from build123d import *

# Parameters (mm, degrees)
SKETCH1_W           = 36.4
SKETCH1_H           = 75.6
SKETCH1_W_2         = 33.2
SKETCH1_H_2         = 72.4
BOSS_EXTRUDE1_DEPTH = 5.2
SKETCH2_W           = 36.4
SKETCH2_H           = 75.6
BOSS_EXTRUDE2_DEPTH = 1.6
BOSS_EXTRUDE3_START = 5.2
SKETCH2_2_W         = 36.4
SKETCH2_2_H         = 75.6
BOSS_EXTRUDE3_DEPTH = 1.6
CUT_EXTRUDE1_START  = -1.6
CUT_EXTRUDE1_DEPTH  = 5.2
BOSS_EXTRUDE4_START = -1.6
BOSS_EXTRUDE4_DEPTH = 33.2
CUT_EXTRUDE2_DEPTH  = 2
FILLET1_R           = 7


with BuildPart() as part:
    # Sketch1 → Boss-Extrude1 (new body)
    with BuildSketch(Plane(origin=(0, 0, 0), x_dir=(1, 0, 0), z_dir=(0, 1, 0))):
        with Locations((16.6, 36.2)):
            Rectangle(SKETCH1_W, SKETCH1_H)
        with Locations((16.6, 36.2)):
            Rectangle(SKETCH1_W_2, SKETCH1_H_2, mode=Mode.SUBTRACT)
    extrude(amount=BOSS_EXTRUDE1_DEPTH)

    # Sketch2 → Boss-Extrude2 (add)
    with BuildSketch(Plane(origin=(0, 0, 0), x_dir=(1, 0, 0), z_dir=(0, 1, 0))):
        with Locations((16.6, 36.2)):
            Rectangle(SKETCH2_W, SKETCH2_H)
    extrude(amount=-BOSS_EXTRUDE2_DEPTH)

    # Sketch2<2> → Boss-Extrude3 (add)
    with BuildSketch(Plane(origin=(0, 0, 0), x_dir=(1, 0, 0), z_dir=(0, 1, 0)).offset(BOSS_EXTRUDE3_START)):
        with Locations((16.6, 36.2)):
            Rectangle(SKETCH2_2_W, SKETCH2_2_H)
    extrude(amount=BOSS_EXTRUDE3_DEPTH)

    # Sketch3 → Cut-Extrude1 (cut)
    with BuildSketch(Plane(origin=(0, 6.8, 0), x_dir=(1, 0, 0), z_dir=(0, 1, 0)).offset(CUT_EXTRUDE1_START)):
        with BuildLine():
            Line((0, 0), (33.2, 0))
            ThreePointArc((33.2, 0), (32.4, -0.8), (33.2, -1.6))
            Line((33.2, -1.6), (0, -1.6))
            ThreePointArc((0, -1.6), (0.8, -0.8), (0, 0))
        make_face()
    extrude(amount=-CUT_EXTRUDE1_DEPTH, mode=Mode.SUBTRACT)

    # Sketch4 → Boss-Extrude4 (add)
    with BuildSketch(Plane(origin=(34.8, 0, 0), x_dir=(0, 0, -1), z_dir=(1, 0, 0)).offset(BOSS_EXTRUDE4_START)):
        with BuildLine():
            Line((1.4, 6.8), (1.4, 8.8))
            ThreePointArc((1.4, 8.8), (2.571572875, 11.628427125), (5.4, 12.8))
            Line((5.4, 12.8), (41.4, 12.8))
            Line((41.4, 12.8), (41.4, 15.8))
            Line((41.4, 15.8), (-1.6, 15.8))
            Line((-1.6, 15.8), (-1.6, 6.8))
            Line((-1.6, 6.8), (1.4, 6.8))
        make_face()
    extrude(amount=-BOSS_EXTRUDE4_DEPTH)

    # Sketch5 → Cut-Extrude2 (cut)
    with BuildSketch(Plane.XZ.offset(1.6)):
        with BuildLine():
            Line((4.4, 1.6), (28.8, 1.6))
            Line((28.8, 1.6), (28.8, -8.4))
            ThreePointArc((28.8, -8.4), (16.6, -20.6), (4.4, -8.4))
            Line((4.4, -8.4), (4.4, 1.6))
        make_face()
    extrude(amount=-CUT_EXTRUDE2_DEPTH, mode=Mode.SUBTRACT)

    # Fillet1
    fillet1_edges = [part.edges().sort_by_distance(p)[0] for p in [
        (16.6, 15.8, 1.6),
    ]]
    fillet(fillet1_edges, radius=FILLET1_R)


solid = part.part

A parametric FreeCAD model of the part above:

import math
import FreeCAD as App
import Part
import Sketcher

V = App.Vector
Q = App.Units.Quantity


def edges_at(feature, points):
    """Names of the edges that pass closest to the given points."""
    edges = feature.Shape.Edges
    near = lambda p: min(range(len(edges)), key=lambda i: edges[i].distToShape(Part.Vertex(*p))[0])
    return sorted({f"Edge{near(p) + 1}" for p in points})

doc = App.newDocument("Part")
body = doc.addObject("PartDesign::Body", "Body")

# Sketch on XZ plane
sketch1 = body.newObject("Sketcher::SketchObject", "Sketch")
sketch1.AttachmentSupport = (doc.getObject("XZ_Plane"), [""])
sketch1.MapMode = "FlatFace"
sketch1.addGeometry([
    Part.LineSegment(V(-2, -74, 0), V(-2, 2, 0)),  # 0
    Part.LineSegment(V(-2, 2, 0), V(35, 2, 0)),  # 1
    Part.LineSegment(V(35, 2, 0), V(35, -74, 0)),  # 2
    Part.LineSegment(V(35, -74, 0), V(-2, -74, 0)),  # 3
    Part.LineSegment(V(33, 0, 0), V(0, 0, 0)),  # 4
    Part.LineSegment(V(0, 0, 0), V(0, -72, 0)),  # 5
    Part.LineSegment(V(0, -72, 0), V(33, -72, 0)),  # 6
    Part.LineSegment(V(33, -72, 0), V(33, 0, 0)),  # 7
], False)
sketch1.addConstraint([
    Sketcher.Constraint("Coincident", 0, 2, 1, 1),
    Sketcher.Constraint("Coincident", 1, 2, 2, 1),
    Sketcher.Constraint("Coincident", 2, 2, 3, 1),
    Sketcher.Constraint("Coincident", 3, 2, 0, 1),
    Sketcher.Constraint("Coincident", 4, 2, 5, 1),
    Sketcher.Constraint("Coincident", 5, 2, 6, 1),
    Sketcher.Constraint("Coincident", 6, 2, 7, 1),
    Sketcher.Constraint("Coincident", 7, 2, 4, 1),
    Sketcher.Constraint("Vertical", 0),
    Sketcher.Constraint("Horizontal", 1),
    Sketcher.Constraint("Vertical", 2),
    Sketcher.Constraint("Horizontal", 3),
    Sketcher.Constraint("Horizontal", 4),
    Sketcher.Constraint("Vertical", 5),
    Sketcher.Constraint("Horizontal", 6),
    Sketcher.Constraint("Vertical", 7),
    Sketcher.Constraint("Coincident", 4, 2, -1, 1),
    Sketcher.Constraint("DistanceX", 1, 1, 1, 2, Q("36.4 mm")),
    Sketcher.Constraint("DistanceX", 4, 2, 4, 1, Q("33.2 mm")),
    Sketcher.Constraint("DistanceY", 0, 1, 0, 2, Q("75.6 mm")),
    Sketcher.Constraint("DistanceY", 5, 2, 5, 1, Q("72.4 mm")),
    Sketcher.Constraint("DistanceY", 2, 2, -1, 1, Q("74 mm")),
    Sketcher.Constraint("DistanceX", 0, 2, -1, 1, Q("1.6 mm")),
])
pad1 = body.newObject("PartDesign::Pad", "Pad")
pad1.Profile = sketch1
pad1.Length = 5.2
pad1.Reversed = True

# Sketch on XZ plane
sketch2 = body.newObject("Sketcher::SketchObject", "Sketch001")
sketch2.AttachmentSupport = (doc.getObject("XZ_Plane"), [""])
sketch2.MapMode = "FlatFace"
sketch2.addGeometry([
    Part.LineSegment(V(-2, -74, 0), V(-2, 2, 0)),
    Part.LineSegment(V(-2, 2, 0), V(35, 2, 0)),
    Part.LineSegment(V(35, 2, 0), V(35, -74, 0)),
    Part.LineSegment(V(35, -74, 0), V(-2, -74, 0)),
], False)
sketch2.addConstraint([
    Sketcher.Constraint("Coincident", 0, 2, 1, 1),
    Sketcher.Constraint("Coincident", 1, 2, 2, 1),
    Sketcher.Constraint("Coincident", 2, 2, 3, 1),
    Sketcher.Constraint("Coincident", 3, 2, 0, 1),
    Sketcher.Constraint("Vertical", 0),
    Sketcher.Constraint("Horizontal", 1),
    Sketcher.Constraint("Vertical", 2),
    Sketcher.Constraint("Horizontal", 3),
    Sketcher.Constraint("DistanceX", 1, 1, 1, 2, Q("36.4 mm")),
    Sketcher.Constraint("DistanceY", 0, 1, 0, 2, Q("75.6 mm")),
    Sketcher.Constraint("DistanceY", 2, 2, -1, 1, Q("74 mm")),
    Sketcher.Constraint("DistanceX", 0, 2, -1, 1, Q("1.6 mm")),
])
pad2 = body.newObject("PartDesign::Pad", "Pad001")
pad2.Profile = sketch2
pad2.Length = 1.6

# Sketch on XZ plane
sketch3 = body.newObject("Sketcher::SketchObject", "Sketch002")
sketch3.AttachmentSupport = (doc.getObject("XZ_Plane"), [""])
sketch3.MapMode = "FlatFace"
sketch3.AttachmentOffset = App.Placement(V(0, 0, -5.2), App.Rotation())
sketch3.addGeometry([
    Part.LineSegment(V(-2, -74, 0), V(-2, 2, 0)),
    Part.LineSegment(V(-2, 2, 0), V(35, 2, 0)),
    Part.LineSegment(V(35, 2, 0), V(35, -74, 0)),
    Part.LineSegment(V(35, -74, 0), V(-2, -74, 0)),
], False)
sketch3.addConstraint([
    Sketcher.Constraint("Coincident", 0, 2, 1, 1),
    Sketcher.Constraint("Coincident", 1, 2, 2, 1),
    Sketcher.Constraint("Coincident", 2, 2, 3, 1),
    Sketcher.Constraint("Coincident", 3, 2, 0, 1),
    Sketcher.Constraint("Vertical", 0),
    Sketcher.Constraint("Horizontal", 1),
    Sketcher.Constraint("Vertical", 2),
    Sketcher.Constraint("Horizontal", 3),
    Sketcher.Constraint("DistanceX", 1, 1, 1, 2, Q("36.4 mm")),
    Sketcher.Constraint("DistanceY", 0, 1, 0, 2, Q("75.6 mm")),
    Sketcher.Constraint("DistanceY", 2, 2, -1, 1, Q("74 mm")),
    Sketcher.Constraint("DistanceX", 0, 2, -1, 1, Q("1.6 mm")),
])
pad3 = body.newObject("PartDesign::Pad", "Pad002")
pad3.Profile = sketch3
pad3.Length = 1.6
pad3.Reversed = True

# Sketch on XZ plane
sketch4 = body.newObject("Sketcher::SketchObject", "Sketch003")
sketch4.AttachmentSupport = (doc.getObject("XZ_Plane"), [""])
sketch4.MapMode = "FlatFace"
sketch4.AttachmentOffset = App.Placement(V(0, 0, -5.2), App.Rotation())
sketch4.addGeometry([
    Part.LineSegment(V(33.2, 0, 0), V(0, 0, 0)),
    Part.ArcOfCircle(Part.Circle(V(0, 0.8, 0), V(0, 0, 1), 0.8), math.radians(-90), math.radians(90)),
    Part.LineSegment(V(0, 1.6, 0), V(33.2, 1.6, 0)),
    Part.ArcOfCircle(Part.Circle(V(33.2, 0.8, 0), V(0, 0, 1), 0.8), math.radians(90), math.radians(270)),
], False)
sketch4.addConstraint([
    Sketcher.Constraint("Tangent", 0, 2, 1, 1),
    Sketcher.Constraint("Tangent", 1, 2, 2, 1),
    Sketcher.Constraint("Tangent", 2, 2, 3, 1),
    Sketcher.Constraint("Tangent", 3, 2, 0, 1),
    Sketcher.Constraint("Horizontal", 0),
    Sketcher.Constraint("Horizontal", 2),
    Sketcher.Constraint("Coincident", 0, 2, -1, 1),
    Sketcher.Constraint("Radius", 1, Q("0.8 mm")),
    Sketcher.Constraint("DistanceX", 0, 2, 0, 1, Q("33.2 mm")),
])
pocket1 = body.newObject("PartDesign::Pocket", "Pocket")
pocket1.Profile = sketch4
pocket1.Length = 5.2
pocket1.Reversed = True

# Sketch on YZ plane
sketch5 = body.newObject("Sketcher::SketchObject", "Sketch004")
sketch5.AttachmentSupport = (doc.getObject("YZ_Plane"), [""])
sketch5.MapMode = "FlatFace"
sketch5.AttachmentOffset = App.Placement(V(0, 0, 33.2), App.Rotation())
sketch5.addGeometry([
    Part.LineSegment(V(6.8, -1.4, 0), V(8.8, -1.4, 0)),  # 0
    Part.ArcOfCircle(Part.Circle(V(8.8, -5.4, 0), V(0, 0, 1), 4), math.radians(0), math.radians(90)),  # 1
    Part.LineSegment(V(12.8, -5.4, 0), V(12.8, -41.4, 0)),  # 2
    Part.LineSegment(V(12.8, -41.4, 0), V(15.8, -41.4, 0)),  # 3
    Part.LineSegment(V(15.8, -41.4, 0), V(15.8, 1.6, 0)),  # 4
    Part.LineSegment(V(15.8, 1.6, 0), V(6.8, 1.6, 0)),  # 5
    Part.LineSegment(V(6.8, 1.6, 0), V(6.8, -1.4, 0)),  # 6
], False)
sketch5.addConstraint([
    Sketcher.Constraint("Tangent", 0, 2, 1, 2),
    Sketcher.Constraint("Tangent", 1, 1, 2, 1),
    Sketcher.Constraint("Coincident", 2, 2, 3, 1),
    Sketcher.Constraint("Coincident", 3, 2, 4, 1),
    Sketcher.Constraint("Coincident", 4, 2, 5, 1),
    Sketcher.Constraint("Coincident", 5, 2, 6, 1),
    Sketcher.Constraint("Coincident", 6, 2, 0, 1),
    Sketcher.Constraint("Horizontal", 0),
    Sketcher.Constraint("Vertical", 2),
    Sketcher.Constraint("Horizontal", 3),
    Sketcher.Constraint("Vertical", 4),
    Sketcher.Constraint("Horizontal", 5),
    Sketcher.Constraint("Vertical", 6),
    Sketcher.Constraint("Equal", 3, 6),
    Sketcher.Constraint("Radius", 1, Q("4 mm")),
    Sketcher.Constraint("DistanceX", 0, 1, 0, 2, Q("2 mm")),
    Sketcher.Constraint("DistanceX", 3, 1, 3, 2, Q("3 mm")),
    Sketcher.Constraint("DistanceY", 2, 2, 2, 1, Q("36 mm")),
    Sketcher.Constraint("DistanceX", -1, 1, 1, 3, Q("8.8 mm")),
    Sketcher.Constraint("DistanceY", 1, 3, -1, 1, Q("5.4 mm")),
])
pad4 = body.newObject("PartDesign::Pad", "Pad003")
pad4.Profile = sketch5
pad4.Length = 33.2
pad4.Reversed = True

# Sketch on XZ plane
sketch6 = body.newObject("Sketcher::SketchObject", "Sketch005")
sketch6.AttachmentSupport = (doc.getObject("XZ_Plane"), [""])
sketch6.MapMode = "FlatFace"
sketch6.AttachmentOffset = App.Placement(V(0, 0, 1.6), App.Rotation())
sketch6.addGeometry([
    Part.LineSegment(V(29, 2, 0), V(4, 2, 0)),
    Part.LineSegment(V(4, 2, 0), V(4, -8, 0)),
    Part.ArcOfCircle(Part.Circle(V(17, -8, 0), V(0, 0, 1), 12), math.radians(180), math.radians(360)),
    Part.LineSegment(V(29, -8, 0), V(29, 2, 0)),
], False)
sketch6.addConstraint([
    Sketcher.Constraint("Coincident", 0, 2, 1, 1),
    Sketcher.Constraint("Tangent", 1, 2, 2, 1),
    Sketcher.Constraint("Tangent", 2, 2, 3, 1),
    Sketcher.Constraint("Coincident", 3, 2, 0, 1),
    Sketcher.Constraint("Horizontal", 0),
    Sketcher.Constraint("Vertical", 1),
    Sketcher.Constraint("Vertical", 3),
    Sketcher.Constraint("Radius", 2, Q("12.2 mm")),
    Sketcher.Constraint("DistanceY", 1, 2, 1, 1, Q("10 mm")),
    Sketcher.Constraint("DistanceX", -1, 1, 2, 3, Q("16.6 mm")),
    Sketcher.Constraint("DistanceY", 2, 3, -1, 1, Q("8.4 mm")),
])
pocket2 = body.newObject("PartDesign::Pocket", "Pocket001")
pocket2.Profile = sketch6
pocket2.Length = 2
doc.recompute()

fillet = body.newObject("PartDesign::Fillet", "Fillet")
fillet.Base = (pocket2, edges_at(pocket2, [(16.6, 15.8, 1.6)]))
fillet.Radius = 7

doc.recompute()
